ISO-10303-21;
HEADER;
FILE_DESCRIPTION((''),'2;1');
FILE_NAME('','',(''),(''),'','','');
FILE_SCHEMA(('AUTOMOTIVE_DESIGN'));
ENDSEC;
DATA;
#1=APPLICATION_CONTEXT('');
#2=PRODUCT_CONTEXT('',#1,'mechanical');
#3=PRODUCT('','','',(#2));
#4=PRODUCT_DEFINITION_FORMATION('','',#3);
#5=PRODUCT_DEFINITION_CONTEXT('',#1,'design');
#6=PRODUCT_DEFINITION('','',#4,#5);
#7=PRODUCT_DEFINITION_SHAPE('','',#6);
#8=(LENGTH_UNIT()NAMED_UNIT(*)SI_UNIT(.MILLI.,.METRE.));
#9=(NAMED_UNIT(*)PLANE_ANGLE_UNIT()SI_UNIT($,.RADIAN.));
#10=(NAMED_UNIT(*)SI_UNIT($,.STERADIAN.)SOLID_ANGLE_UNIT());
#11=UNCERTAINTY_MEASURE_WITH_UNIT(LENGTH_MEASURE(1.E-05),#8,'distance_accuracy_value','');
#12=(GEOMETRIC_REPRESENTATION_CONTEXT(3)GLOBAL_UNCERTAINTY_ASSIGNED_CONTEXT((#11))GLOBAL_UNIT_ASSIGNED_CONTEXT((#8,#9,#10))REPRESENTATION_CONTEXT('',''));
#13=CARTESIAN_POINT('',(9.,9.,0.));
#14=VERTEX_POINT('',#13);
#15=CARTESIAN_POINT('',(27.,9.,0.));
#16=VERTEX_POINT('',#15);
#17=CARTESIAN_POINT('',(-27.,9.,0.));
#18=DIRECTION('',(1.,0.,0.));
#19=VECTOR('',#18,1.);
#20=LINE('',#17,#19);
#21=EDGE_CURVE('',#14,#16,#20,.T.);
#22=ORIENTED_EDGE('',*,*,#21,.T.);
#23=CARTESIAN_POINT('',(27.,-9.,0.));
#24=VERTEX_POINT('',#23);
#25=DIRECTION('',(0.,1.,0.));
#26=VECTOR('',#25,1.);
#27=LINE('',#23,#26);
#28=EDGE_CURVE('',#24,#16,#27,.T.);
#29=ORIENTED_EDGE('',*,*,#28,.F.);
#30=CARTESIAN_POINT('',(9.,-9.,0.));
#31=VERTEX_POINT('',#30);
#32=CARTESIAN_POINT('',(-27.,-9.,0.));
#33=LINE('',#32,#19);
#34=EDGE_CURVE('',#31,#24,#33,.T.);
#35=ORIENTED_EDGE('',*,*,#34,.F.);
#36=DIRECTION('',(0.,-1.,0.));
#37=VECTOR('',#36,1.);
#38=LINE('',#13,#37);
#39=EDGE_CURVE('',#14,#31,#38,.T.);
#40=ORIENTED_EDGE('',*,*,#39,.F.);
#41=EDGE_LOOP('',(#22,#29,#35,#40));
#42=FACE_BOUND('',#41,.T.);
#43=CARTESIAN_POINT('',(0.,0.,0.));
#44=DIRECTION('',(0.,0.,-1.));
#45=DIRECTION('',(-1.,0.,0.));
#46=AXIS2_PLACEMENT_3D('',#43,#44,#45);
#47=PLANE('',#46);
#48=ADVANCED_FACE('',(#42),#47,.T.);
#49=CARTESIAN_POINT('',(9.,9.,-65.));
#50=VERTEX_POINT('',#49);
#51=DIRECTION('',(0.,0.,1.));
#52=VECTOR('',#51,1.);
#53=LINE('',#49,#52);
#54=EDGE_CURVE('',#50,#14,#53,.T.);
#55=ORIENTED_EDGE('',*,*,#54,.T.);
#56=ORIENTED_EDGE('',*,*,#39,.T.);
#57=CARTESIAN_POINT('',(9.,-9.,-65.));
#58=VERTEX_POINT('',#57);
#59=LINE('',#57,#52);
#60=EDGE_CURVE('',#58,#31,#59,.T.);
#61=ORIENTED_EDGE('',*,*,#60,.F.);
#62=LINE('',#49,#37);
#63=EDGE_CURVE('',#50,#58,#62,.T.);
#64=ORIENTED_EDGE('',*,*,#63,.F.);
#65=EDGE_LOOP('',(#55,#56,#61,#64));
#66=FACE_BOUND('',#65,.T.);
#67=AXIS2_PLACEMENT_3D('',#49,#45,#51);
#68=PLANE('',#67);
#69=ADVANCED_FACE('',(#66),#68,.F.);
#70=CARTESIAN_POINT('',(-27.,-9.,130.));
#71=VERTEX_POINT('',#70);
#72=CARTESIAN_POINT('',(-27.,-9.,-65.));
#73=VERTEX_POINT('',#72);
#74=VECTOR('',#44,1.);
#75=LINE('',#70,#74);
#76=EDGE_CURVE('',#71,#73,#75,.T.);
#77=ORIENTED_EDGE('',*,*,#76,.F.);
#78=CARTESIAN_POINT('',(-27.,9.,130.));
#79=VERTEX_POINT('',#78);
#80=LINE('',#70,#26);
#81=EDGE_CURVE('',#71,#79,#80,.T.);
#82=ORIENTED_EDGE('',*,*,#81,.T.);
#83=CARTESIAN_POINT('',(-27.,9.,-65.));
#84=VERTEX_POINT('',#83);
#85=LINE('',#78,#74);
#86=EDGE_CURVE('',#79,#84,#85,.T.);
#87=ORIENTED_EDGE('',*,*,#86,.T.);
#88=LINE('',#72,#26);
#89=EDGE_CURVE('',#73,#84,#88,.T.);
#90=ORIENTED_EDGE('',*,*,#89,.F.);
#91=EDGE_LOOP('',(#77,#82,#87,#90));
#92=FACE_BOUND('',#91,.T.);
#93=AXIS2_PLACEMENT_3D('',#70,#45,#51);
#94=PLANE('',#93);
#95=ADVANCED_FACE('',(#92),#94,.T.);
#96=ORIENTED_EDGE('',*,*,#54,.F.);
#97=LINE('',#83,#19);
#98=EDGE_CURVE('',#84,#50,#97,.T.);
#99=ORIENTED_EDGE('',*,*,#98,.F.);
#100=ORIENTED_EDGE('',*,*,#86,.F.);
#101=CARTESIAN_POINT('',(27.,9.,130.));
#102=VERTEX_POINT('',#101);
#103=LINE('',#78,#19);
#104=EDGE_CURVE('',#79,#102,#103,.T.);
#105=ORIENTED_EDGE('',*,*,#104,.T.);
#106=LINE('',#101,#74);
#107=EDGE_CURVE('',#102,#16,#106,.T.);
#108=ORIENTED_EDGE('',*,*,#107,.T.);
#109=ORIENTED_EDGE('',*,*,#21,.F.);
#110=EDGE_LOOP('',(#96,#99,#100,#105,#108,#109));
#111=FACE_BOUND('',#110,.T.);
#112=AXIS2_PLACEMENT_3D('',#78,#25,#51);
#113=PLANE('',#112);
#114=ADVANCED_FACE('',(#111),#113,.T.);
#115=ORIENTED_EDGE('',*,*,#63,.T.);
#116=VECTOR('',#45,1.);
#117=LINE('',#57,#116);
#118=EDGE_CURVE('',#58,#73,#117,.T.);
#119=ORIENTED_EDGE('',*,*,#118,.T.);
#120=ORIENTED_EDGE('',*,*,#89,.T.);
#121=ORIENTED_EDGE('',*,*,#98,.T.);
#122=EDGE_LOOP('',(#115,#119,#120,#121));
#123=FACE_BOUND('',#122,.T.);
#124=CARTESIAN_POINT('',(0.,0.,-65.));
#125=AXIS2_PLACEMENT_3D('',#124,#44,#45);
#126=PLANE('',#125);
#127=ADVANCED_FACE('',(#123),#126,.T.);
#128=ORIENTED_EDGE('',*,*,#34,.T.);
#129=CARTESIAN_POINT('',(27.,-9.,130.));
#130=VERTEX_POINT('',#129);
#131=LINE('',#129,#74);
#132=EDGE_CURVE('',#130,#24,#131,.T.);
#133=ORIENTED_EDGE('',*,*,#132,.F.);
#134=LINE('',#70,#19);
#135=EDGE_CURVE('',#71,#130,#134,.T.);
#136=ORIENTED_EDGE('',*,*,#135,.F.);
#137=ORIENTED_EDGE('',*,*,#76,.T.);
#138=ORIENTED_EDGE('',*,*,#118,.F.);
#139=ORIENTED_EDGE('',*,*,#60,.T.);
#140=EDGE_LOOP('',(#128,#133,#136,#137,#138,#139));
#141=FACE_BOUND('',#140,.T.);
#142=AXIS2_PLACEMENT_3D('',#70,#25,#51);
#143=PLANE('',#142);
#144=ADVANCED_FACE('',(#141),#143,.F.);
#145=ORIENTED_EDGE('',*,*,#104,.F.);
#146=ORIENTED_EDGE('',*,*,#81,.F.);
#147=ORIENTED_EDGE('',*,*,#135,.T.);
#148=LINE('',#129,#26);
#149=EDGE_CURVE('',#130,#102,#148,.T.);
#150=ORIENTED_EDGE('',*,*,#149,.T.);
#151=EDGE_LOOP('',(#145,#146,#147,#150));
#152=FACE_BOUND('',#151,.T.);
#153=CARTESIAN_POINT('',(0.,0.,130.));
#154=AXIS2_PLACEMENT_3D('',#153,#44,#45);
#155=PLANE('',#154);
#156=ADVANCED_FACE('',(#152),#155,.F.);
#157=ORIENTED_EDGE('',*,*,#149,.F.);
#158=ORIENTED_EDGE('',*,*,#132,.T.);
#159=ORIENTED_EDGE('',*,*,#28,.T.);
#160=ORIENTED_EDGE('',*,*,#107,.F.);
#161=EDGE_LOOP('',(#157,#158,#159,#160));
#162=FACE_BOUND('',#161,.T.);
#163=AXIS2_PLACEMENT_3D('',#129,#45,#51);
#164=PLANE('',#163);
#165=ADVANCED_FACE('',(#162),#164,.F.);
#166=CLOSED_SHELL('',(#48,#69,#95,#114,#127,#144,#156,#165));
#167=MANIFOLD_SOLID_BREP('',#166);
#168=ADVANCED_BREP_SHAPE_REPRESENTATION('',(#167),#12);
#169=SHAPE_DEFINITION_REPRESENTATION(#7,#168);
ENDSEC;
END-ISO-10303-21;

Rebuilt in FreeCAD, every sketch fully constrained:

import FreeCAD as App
import Part
import Sketcher
Q = App.Units.Quantity

doc = App.newDocument("Part")
body = doc.addObject("PartDesign::Body", "Body")

# Sketch on XY plane
sketch1 = doc.addObject("Sketcher::SketchObject", "Sketch")
body.addObject(sketch1)
sketch1.AttachmentSupport = (doc.XY_Plane, [""])
sketch1.MapMode = "FlatFace"
sketch1.addGeometry([
    Part.LineSegment(App.Vector(-27, 9, 0), App.Vector(-27, -9, 0)),
    Part.LineSegment(App.Vector(-27, -9, 0), App.Vector(27, -9, 0)),
    Part.LineSegment(App.Vector(27, -9, 0), App.Vector(27, 9, 0)),
    Part.LineSegment(App.Vector(27, 9, 0), App.Vector(-27, 9, 0)),
], False)
sketch1.addConstraint([
    Sketcher.Constraint("Coincident", 0, 2, 1, 1),
    Sketcher.Constraint("Coincident", 1, 2, 2, 1),
    Sketcher.Constraint("Coincident", 2, 2, 3, 1),
    Sketcher.Constraint("Coincident", 3, 2, 0, 1),
    Sketcher.Constraint("Vertical", 0),
    Sketcher.Constraint("Horizontal", 1),
    Sketcher.Constraint("Vertical", 2),
    Sketcher.Constraint("Horizontal", 3),
    Sketcher.Constraint("Symmetric", 0, 2, 2, 2, -1, 1),
    Sketcher.Constraint("DistanceX", 1, 1, 1, 2, Q("54 mm")),
    Sketcher.Constraint("DistanceY", 0, 2, 0, 1, Q("18 mm")),
])
pad1 = doc.addObject("PartDesign::Pad", "Pad")
body.addObject(pad1)
pad1.Profile = sketch1
pad1.Length = 130

# Sketch on XY plane
sketch2 = doc.addObject("Sketcher::SketchObject", "Sketch001")
body.addObject(sketch2)
sketch2.AttachmentSupport = (doc.XY_Plane, [""])
sketch2.MapMode = "FlatFace"
sketch2.addGeometry([
    Part.LineSegment(App.Vector(9, 9, 0), App.Vector(9, -9, 0)),
    Part.LineSegment(App.Vector(9, -9, 0), App.Vector(-27, -9, 0)),
    Part.LineSegment(App.Vector(-27, -9, 0), App.Vector(-27, 9, 0)),
    Part.LineSegment(App.Vector(-27, 9, 0), App.Vector(9, 9, 0)),
], False)
sketch2.addConstraint([
    Sketcher.Constraint("Coincident", 0, 2, 1, 1),
    Sketcher.Constraint("Coincident", 1, 2, 2, 1),
    Sketcher.Constraint("Coincident", 2, 2, 3, 1),
    Sketcher.Constraint("Coincident", 3, 2, 0, 1),
    Sketcher.Constraint("Vertical", 0),
    Sketcher.Constraint("Horizontal", 1),
    Sketcher.Constraint("Vertical", 2),
    Sketcher.Constraint("Horizontal", 3),
    Sketcher.Constraint("DistanceX", 1, 2, 1, 1, Q("36 mm")),
    Sketcher.Constraint("DistanceY", 0, 2, 0, 1, Q("18 mm")),
    Sketcher.Constraint("DistanceX", -1, 1, 0, 2, Q("9 mm")),
    Sketcher.Constraint("DistanceY", 0, 2, -1, 1, Q("9 mm")),
])
pad2 = doc.addObject("PartDesign::Pad", "Pad001")
body.addObject(pad2)
pad2.Profile = sketch2
pad2.Length = 65
pad2.Reversed = True

doc.recompute()
